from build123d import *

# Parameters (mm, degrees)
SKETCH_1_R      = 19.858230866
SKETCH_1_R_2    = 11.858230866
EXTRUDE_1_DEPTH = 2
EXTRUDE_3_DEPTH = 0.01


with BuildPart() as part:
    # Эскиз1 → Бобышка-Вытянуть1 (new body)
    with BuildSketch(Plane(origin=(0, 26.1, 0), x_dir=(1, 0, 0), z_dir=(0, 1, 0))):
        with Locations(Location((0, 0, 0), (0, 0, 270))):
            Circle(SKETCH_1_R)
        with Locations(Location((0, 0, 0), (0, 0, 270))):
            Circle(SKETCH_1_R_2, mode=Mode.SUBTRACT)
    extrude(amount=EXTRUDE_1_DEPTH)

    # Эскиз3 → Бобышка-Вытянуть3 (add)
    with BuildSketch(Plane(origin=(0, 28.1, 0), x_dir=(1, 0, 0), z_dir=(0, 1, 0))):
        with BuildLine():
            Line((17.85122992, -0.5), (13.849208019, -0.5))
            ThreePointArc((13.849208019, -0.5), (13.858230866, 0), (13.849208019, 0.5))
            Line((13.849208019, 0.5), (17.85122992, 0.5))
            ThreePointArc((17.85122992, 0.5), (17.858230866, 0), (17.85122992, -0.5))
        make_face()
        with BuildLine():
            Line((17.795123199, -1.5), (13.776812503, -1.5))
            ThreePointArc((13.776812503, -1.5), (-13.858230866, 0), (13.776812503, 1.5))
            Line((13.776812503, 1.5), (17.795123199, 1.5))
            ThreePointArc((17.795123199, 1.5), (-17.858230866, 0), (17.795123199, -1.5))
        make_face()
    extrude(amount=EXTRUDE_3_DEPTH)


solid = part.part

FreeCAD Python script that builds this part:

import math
import FreeCAD as App
import Part
import Sketcher
Q = App.Units.Quantity

doc = App.newDocument("Part")
body = doc.addObject("PartDesign::Body", "Body")

sketch1 = body.newObject("Sketcher::SketchObject", "Sketch")
sketch1.AttachmentSupport = (doc.getObject("XZ_Plane"), [""])
sketch1.MapMode = "FlatFace"
sketch1.AttachmentOffset = App.Placement(App.Vector(0, 0, -26.1), App.Rotation())
sketch1.addGeometry(Part.Circle(App.Vector(0, 0, 0), App.Vector(0, 0, 1), 20), False)
sketch1.addGeometry(Part.Circle(App.Vector(0, 0, 0), App.Vector(0, 0, 1), 12), False)
sketch1.addConstraint(Sketcher.Constraint("Coincident", 0, 3, -1, 1))
sketch1.addConstraint(Sketcher.Constraint("Coincident", 1, 3, -1, 1))
sketch1.addConstraint(Sketcher.Constraint("Diameter", 0, Q("39.716462 mm")))
sketch1.addConstraint(Sketcher.Constraint("Diameter", 1, Q("23.716462 mm")))
pad1 = body.newObject("PartDesign::Pad", "Pad")
pad1.Profile = sketch1
pad1.Length = 2
pad1.Reversed = True

sketch2 = body.newObject("Sketcher::SketchObject", "Sketch001")
sketch2.AttachmentSupport = (doc.getObject("XZ_Plane"), [""])
sketch2.MapMode = "FlatFace"
sketch2.AttachmentOffset = App.Placement(App.Vector(0, 0, -28.1), App.Rotation())
sketch2.addGeometry(Part.LineSegment(App.Vector(13.8, 0.5, 0), App.Vector(17.9, 0.5, 0)), False)
sketch2.addGeometry(Part.ArcOfCircle(Part.Circle(App.Vector(0, 0, 0), App.Vector(0, 0, 1), 17.9), math.radians(-1.6), math.radians(1.6)), False)
sketch2.addGeometry(Part.LineSegment(App.Vector(17.9, -0.5, 0), App.Vector(13.8, -0.5, 0)), False)
sketch2.addGeometry(Part.ArcOfCircle(Part.Circle(App.Vector(0, 0, 0), App.Vector(0, 0, 1), 13.9), math.radians(-2.07), math.radians(2.07)), False)
sketch2.addGeometry(Part.LineSegment(App.Vector(17.8, 1.5, 0), App.Vector(13.8, 1.5, 0)), False)
sketch2.addGeometry(Part.ArcOfCircle(Part.Circle(App.Vector(0, 0, 0), App.Vector(0, 0, 1), 13.9), math.radians(6), math.radians(354)), False)
sketch2.addGeometry(Part.LineSegment(App.Vector(13.8, -1.5, 0), App.Vector(17.8, -1.5, 0)), False)
sketch2.addGeometry(Part.ArcOfCircle(Part.Circle(App.Vector(0, 0, 0), App.Vector(0, 0, 1), 17.9), math.radians(5), math.radians(355)), False)
sketch2.addConstraint(Sketcher.Constraint("Coincident", 0, 2, 1, 2))
sketch2.addConstraint(Sketcher.Constraint("Coincident", 1, 1, 2, 1))
sketch2.addConstraint(Sketcher.Constraint("Coincident", 2, 2, 3, 1))
sketch2.addConstraint(Sketcher.Constraint("Coincident", 3, 2, 0, 1))
sketch2.addConstraint(Sketcher.Constraint("Coincident", 4, 2, 5, 1))
sketch2.addConstraint(Sketcher.Constraint("Coincident", 5, 2, 6, 1))
sketch2.addConstraint(Sketcher.Constraint("Coincident", 6, 2, 7, 2))
sketch2.addConstraint(Sketcher.Constraint("Coincident", 7, 1, 4, 1))
sketch2.addConstraint(Sketcher.Constraint("Horizontal", 0))
sketch2.addConstraint(Sketcher.Constraint("Horizontal", 2))
sketch2.addConstraint(Sketcher.Constraint("Horizontal", 4))
sketch2.addConstraint(Sketcher.Constraint("Horizontal", 6))
sketch2.addConstraint(Sketcher.Constraint("Coincident", 1, 3, -1, 1))
sketch2.addConstraint(Sketcher.Constraint("Coincident", 3, 3, -1, 1))
sketch2.addConstraint(Sketcher.Constraint("Coincident", 5, 3, -1, 1))
sketch2.addConstraint(Sketcher.Constraint("Coincident", 7, 3, -1, 1))
sketch2.addConstraint(Sketcher.Constraint("Equal", 3, 5))
sketch2.addConstraint(Sketcher.Constraint("Equal", 1, 7))
sketch2.addConstraint(Sketcher.Constraint("Vertical", 0, 2, 1, 1))
sketch2.addConstraint(Sketcher.Constraint("Vertical", 4, 2, 5, 2))
sketch2.addConstraint(Sketcher.Constraint("DistanceY", 1, 1, 0, 2, Q("1 mm")))
sketch2.addConstraint(Sketcher.Constraint("DistanceY", 3, 2, 4, 2, Q("1 mm")))
sketch2.addConstraint(Sketcher.Constraint("Radius", 1, Q("17.85823 mm")))
sketch2.addConstraint(Sketcher.Constraint("Radius", 3, Q("13.858232 mm")))
pad2 = body.newObject("PartDesign::Pad", "Pad001")
pad2.Profile = sketch2
pad2.Length = 0.01
pad2.Reversed = True

doc.recompute()
